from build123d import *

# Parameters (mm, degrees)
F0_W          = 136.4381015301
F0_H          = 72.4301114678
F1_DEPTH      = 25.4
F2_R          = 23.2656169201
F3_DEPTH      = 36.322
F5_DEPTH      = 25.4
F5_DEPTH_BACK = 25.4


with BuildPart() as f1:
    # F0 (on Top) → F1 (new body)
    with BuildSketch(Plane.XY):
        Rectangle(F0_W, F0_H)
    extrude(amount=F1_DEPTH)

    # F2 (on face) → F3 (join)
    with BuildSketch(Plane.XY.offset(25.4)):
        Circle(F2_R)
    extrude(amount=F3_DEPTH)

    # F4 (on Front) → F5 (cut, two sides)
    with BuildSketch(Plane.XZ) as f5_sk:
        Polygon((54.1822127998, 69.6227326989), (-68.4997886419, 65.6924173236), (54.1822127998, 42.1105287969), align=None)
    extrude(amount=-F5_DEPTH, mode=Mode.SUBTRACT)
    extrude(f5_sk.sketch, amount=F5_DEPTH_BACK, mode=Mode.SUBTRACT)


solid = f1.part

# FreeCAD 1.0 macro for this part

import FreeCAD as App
import Part
import Sketcher

V = App.Vector
Q = App.Units.Quantity


def add_polygon(sketch, points):
    """Adds a closed chain of lines whose ends are joined by coincident constraints."""
    first, n = sketch.GeometryCount, len(points)
    for a, b in zip(points, points[1:] + points[:1]):
        sketch.addGeometry(Part.LineSegment(App.Vector(*a, 0), App.Vector(*b, 0)), False)
    for i in range(n):
        sketch.addConstraint(Sketcher.Constraint("Coincident", first + i, 2, first + (i + 1) % n, 1))

doc = App.newDocument("Part")
params = doc.addObject("Spreadsheet::Sheet", "Params")
for row, (alias, value) in enumerate([
    ("pad1_length", "1 in"),
    ("pad2_length", "1.43 in"),
], start=1):
    params.set(f"A{row}", alias)
    params.set(f"B{row}", "=" + value)
    params.setAlias(f"B{row}", alias)

body = doc.addObject("PartDesign::Body", "Body")

sketch1 = doc.addObject("Sketcher::SketchObject", "Sketch")
body.addObject(sketch1)
sketch1.AttachmentSupport = (doc.XY_Plane, [""])
sketch1.MapMode = "FlatFace"
add_polygon(sketch1, [(-68, 36), (-68, -36), (68, -36), (68, 36)])
sketch1.addConstraint([
    Sketcher.Constraint("Vertical", 0),
    Sketcher.Constraint("Horizontal", 1),
    Sketcher.Constraint("Vertical", 2),
    Sketcher.Constraint("Horizontal", 3),
    Sketcher.Constraint("Symmetric", 0, 2, 2, 2, -1, 1),
    Sketcher.Constraint("DistanceX", 1, 1, 1, 2, Q("136.438102 mm")),
    Sketcher.Constraint("DistanceY", 0, 2, 0, 1, Q("72.430111 mm")),
])
pad1 = doc.addObject("PartDesign::Pad", "Pad")
body.addObject(pad1)
pad1.Profile = sketch1
pad1.setExpression("Length", "Params.pad1_length")

sketch2 = doc.addObject("Sketcher::SketchObject", "Sketch001")
body.addObject(sketch2)
sketch2.AttachmentSupport = (doc.XY_Plane, [""])
sketch2.MapMode = "FlatFace"
sketch2.AttachmentOffset = App.Placement(V(0, 0, 1 * 25.4), App.Rotation())
sketch2.addGeometry(Part.Circle(V(0, 0, 0), V(0, 0, 1), 23), False)
sketch2.addConstraint([
    Sketcher.Constraint("Coincident", 0, 3, -1, 1),
    Sketcher.Constraint("Diameter", 0, Q("46.531234 mm")),
])
pad2 = doc.addObject("PartDesign::Pad", "Pad001")
body.addObject(pad2)
pad2.Profile = sketch2
pad2.setExpression("Length", "Params.pad2_length")

sketch3 = doc.addObject("Sketcher::SketchObject", "Sketch002")
body.addObject(sketch3)
sketch3.AttachmentSupport = (doc.XZ_Plane, [""])
sketch3.MapMode = "FlatFace"
add_polygon(sketch3, [(54, 70), (-68, 66), (54, 42)])
sketch3.addConstraint([
    Sketcher.Constraint("Vertical", 2),
    Sketcher.Constraint("DistanceX", 0, 2, 1, 2, Q("4.8300001 in")),
    Sketcher.Constraint("DistanceY", 2, 1, 2, 2, Q("27.512204 mm")),
    Sketcher.Constraint("DistanceX", 0, 2, -1, 1, Q("68.499789 mm")),
    Sketcher.Constraint("DistanceY", -1, 1, 1, 2, Q("42.110529 mm")),
    Sketcher.Constraint("DistanceY", 1, 2, 0, 2, Q("23.581889 mm")),
])
pocket1 = doc.addObject("PartDesign::Pocket", "Pocket")
body.addObject(pocket1)
pocket1.Profile = sketch3
pocket1.Type = "ThroughAll"
pocket1.Midplane = True

doc.recompute()
